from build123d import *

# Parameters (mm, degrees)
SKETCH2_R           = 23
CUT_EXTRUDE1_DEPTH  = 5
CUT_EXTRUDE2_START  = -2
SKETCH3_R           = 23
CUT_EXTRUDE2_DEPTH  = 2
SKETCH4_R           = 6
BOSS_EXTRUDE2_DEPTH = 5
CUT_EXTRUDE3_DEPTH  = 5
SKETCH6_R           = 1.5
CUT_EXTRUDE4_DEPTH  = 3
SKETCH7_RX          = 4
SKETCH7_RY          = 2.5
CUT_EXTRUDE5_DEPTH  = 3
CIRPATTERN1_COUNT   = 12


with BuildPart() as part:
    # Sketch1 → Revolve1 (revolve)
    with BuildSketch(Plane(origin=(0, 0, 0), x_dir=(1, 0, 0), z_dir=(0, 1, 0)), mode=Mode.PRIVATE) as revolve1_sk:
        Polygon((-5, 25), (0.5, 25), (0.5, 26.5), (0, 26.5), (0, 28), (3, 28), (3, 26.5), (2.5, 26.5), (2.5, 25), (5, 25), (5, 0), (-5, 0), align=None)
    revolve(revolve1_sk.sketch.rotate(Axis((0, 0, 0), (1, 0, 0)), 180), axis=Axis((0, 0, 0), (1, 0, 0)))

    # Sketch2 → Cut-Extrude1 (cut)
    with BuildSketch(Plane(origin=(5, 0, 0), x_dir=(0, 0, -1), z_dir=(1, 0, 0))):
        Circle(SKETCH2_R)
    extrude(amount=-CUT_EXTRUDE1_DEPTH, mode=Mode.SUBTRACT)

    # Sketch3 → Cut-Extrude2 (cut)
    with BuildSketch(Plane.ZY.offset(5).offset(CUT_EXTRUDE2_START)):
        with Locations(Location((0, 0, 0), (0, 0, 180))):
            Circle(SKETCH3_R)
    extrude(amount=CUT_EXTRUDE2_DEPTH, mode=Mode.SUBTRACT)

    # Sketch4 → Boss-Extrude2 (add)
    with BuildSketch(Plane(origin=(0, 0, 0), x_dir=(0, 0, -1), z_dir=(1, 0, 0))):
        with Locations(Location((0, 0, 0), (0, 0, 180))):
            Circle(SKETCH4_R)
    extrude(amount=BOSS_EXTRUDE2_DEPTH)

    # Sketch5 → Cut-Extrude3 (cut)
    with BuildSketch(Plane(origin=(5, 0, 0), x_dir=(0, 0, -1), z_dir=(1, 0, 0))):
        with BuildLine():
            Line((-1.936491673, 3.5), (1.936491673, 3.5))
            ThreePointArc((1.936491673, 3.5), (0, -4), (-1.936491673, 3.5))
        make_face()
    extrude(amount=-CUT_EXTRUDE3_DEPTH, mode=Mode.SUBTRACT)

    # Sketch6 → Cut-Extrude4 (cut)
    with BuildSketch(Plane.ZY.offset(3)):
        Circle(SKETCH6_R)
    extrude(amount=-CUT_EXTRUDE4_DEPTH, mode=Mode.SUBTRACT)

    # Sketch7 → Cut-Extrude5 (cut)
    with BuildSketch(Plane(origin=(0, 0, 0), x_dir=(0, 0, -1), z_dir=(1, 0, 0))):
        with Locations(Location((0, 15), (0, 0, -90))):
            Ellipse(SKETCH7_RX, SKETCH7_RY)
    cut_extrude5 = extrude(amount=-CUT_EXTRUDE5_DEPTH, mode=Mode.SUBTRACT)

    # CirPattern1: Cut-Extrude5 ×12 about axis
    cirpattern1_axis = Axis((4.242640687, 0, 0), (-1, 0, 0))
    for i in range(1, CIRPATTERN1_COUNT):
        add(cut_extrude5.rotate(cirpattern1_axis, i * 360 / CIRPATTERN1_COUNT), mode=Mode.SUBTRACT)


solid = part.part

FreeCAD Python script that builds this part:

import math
import FreeCAD as App
import Part
import Sketcher
Q = App.Units.Quantity


def add_polygon(sketch, points):
    """Adds a closed chain of lines whose ends are joined by coincident constraints."""
    first, n = sketch.GeometryCount, len(points)
    for a, b in zip(points, points[1:] + points[:1]):
        sketch.addGeometry(Part.LineSegment(App.Vector(*a, 0), App.Vector(*b, 0)), False)
    for i in range(n):
        sketch.addConstraint(Sketcher.Constraint("Coincident", first + i, 2, first + (i + 1) % n, 1))

doc = App.newDocument("Part")
params = doc.addObject("Spreadsheet::Sheet", "Params")
for row, (alias, value) in enumerate([
    ("sketch1_width", "10 mm"),
    ("sketch1_width2", "3 mm"),
    ("sketch1_height", "25 mm"),
    ("sketch1_width3", "5.5 mm"),
    ("sketch1_height2", "1.5 mm"),
    ("revolution_angle", "360 deg"),
    ("sketch2_diameter", "46 mm"),
    ("pocket1_length", "5 mm"),
    ("sketch3_diameter", "46 mm"),
    ("pocket2_length", "2 mm"),
    ("sketch4_diameter", "12 mm"),
    ("pad1_length", "5 mm"),
    ("sketch5_radius", "4 mm"),
    ("pocket3_length", "5 mm"),
    ("sketch6_diameter", "3 mm"),
    ("pocket4_length", "3 mm"),
    ("pocket5_length", "3 mm"),
], start=1):
    params.set(f"A{row}", alias)
    params.set(f"B{row}", "=" + value)
    params.setAlias(f"B{row}", alias)

body = doc.addObject("PartDesign::Body", "Body")

# Sketch on XZ plane
sketch1 = body.newObject("Sketcher::SketchObject", "Sketch")
sketch1.AttachmentSupport = (doc.getObject("XZ_Plane"), [""])
sketch1.MapMode = "FlatFace"
add_polygon(sketch1, [(0.5, -25), (-5, -25), (-5, 0), (5, 0), (5, -25), (2.5, -25), (2.5, -26.5), (3, -26.5), (3, -28), (0, -28), (0, -26.5), (0.5, -26.5)])  # lines 0-11
sketch1.addConstraint(Sketcher.Constraint("Horizontal", 0))
sketch1.addConstraint(Sketcher.Constraint("Vertical", 1))
sketch1.addConstraint(Sketcher.Constraint("Horizontal", 2))
sketch1.addConstraint(Sketcher.Constraint("Vertical", 3))
sketch1.addConstraint(Sketcher.Constraint("Horizontal", 4))
sketch1.addConstraint(Sketcher.Constraint("Vertical", 5))
sketch1.addConstraint(Sketcher.Constraint("Horizontal", 6))
sketch1.addConstraint(Sketcher.Constraint("Vertical", 7))
sketch1.addConstraint(Sketcher.Constraint("Horizontal", 8))
sketch1.addConstraint(Sketcher.Constraint("Vertical", 9))
sketch1.addConstraint(Sketcher.Constraint("Horizontal", 10))
sketch1.addConstraint(Sketcher.Constraint("Vertical", 11))
sketch1.addConstraint(Sketcher.Constraint("Symmetric", 1, 2, 2, 2, -1, 1))
sketch1.addConstraint(Sketcher.Constraint("PointOnObject", 8, 2, -2))
sketch1.addConstraint(Sketcher.Constraint("Horizontal", 0, 2, 3, 2))
sketch1.addConstraint(Sketcher.Constraint("Horizontal", 6, 2, 9, 2))
sketch1.addConstraint(Sketcher.Constraint("Equal", 6, 10))
sketch1.addConstraint(Sketcher.Constraint("Equal", 5, 7))
sketch1.addConstraint(Sketcher.Constraint("DistanceX", 2, 1, 2, 2, Q("10 mm")))
sketch1.addConstraint(Sketcher.Constraint("DistanceX", 8, 2, 8, 1, Q("3 mm")))
sketch1.addConstraint(Sketcher.Constraint("DistanceY", 1, 1, 1, 2, Q("25 mm")))
sketch1.addConstraint(Sketcher.Constraint("DistanceX", 0, 2, 0, 1, Q("5.5 mm")))
sketch1.addConstraint(Sketcher.Constraint("DistanceY", 5, 2, 5, 1, Q("1.5 mm")))
sketch1.setExpression("Constraints[30]", "Params.sketch1_width")
sketch1.setExpression("Constraints[31]", "Params.sketch1_width2")
sketch1.setExpression("Constraints[32]", "Params.sketch1_height")
sketch1.setExpression("Constraints[33]", "Params.sketch1_width3")
sketch1.setExpression("Constraints[34]", "Params.sketch1_height2")
revolution = body.newObject("PartDesign::Revolution", "Revolution")
revolution.Profile = sketch1
revolution.ReferenceAxis = (sketch1, ["H_Axis"])
revolution.setExpression("Angle", "Params.revolution_angle")

# Sketch on YZ plane
sketch2 = body.newObject("Sketcher::SketchObject", "Sketch001")
sketch2.AttachmentSupport = (doc.getObject("YZ_Plane"), [""])
sketch2.MapMode = "FlatFace"
sketch2.AttachmentOffset = App.Placement(App.Vector(0, 0, 5), App.Rotation())
sketch2.addGeometry(Part.Circle(App.Vector(0, 0, 0), App.Vector(0, 0, 1), 23), False)
sketch2.addConstraint(Sketcher.Constraint("Coincident", 0, 3, -1, 1))
sketch2.addConstraint(Sketcher.Constraint("Diameter", 0, Q("46 mm")))
sketch2.setExpression("Constraints[1]", "Params.sketch2_diameter")
pocket1 = body.newObject("PartDesign::Pocket", "Pocket")
pocket1.Profile = sketch2
pocket1.setExpression("Length", "Params.pocket1_length")

# Sketch on YZ plane
sketch3 = body.newObject("Sketcher::SketchObject", "Sketch002")
sketch3.AttachmentSupport = (doc.getObject("YZ_Plane"), [""])
sketch3.MapMode = "FlatFace"
sketch3.AttachmentOffset = App.Placement(App.Vector(0, 0, -3), App.Rotation())
sketch3.addGeometry(Part.Circle(App.Vector(0, 0, 0), App.Vector(0, 0, 1), 23), False)
sketch3.addConstraint(Sketcher.Constraint("Coincident", 0, 3, -1, 1))
sketch3.addConstraint(Sketcher.Constraint("Diameter", 0, Q("46 mm")))
sketch3.setExpression("Constraints[1]", "Params.sketch3_diameter")
pocket2 = body.newObject("PartDesign::Pocket", "Pocket001")
pocket2.Profile = sketch3
pocket2.setExpression("Length", "Params.pocket2_length")

# Sketch on YZ plane
sketch4 = body.newObject("Sketcher::SketchObject", "Sketch003")
sketch4.AttachmentSupport = (doc.getObject("YZ_Plane"), [""])
sketch4.MapMode = "FlatFace"
sketch4.addGeometry(Part.Circle(App.Vector(0, 0, 0), App.Vector(0, 0, 1), 6), False)
sketch4.addConstraint(Sketcher.Constraint("Coincident", 0, 3, -1, 1))
sketch4.addConstraint(Sketcher.Constraint("Diameter", 0, Q("12 mm")))
sketch4.setExpression("Constraints[1]", "Params.sketch4_diameter")
pad1 = body.newObject("PartDesign::Pad", "Pad")
pad1.Profile = sketch4
pad1.setExpression("Length", "Params.pad1_length")

# Sketch on YZ plane
sketch5 = body.newObject("Sketcher::SketchObject", "Sketch004")
sketch5.AttachmentSupport = (doc.getObject("YZ_Plane"), [""])
sketch5.MapMode = "FlatFace"
sketch5.AttachmentOffset = App.Placement(App.Vector(0, 0, 5), App.Rotation())
sketch5.addGeometry(Part.LineSegment(App.Vector(3.5, -1.9, 0), App.Vector(3.5, 1.9, 0)), False)
sketch5.addGeometry(Part.ArcOfCircle(Part.Circle(App.Vector(0, 0, 0), App.Vector(0, 0, 1), 4), math.radians(29), math.radians(331)), False)
sketch5.addConstraint(Sketcher.Constraint("Coincident", 0, 1, 1, 2))
sketch5.addConstraint(Sketcher.Constraint("Coincident", 1, 1, 0, 2))
sketch5.addConstraint(Sketcher.Constraint("Vertical", 0))
sketch5.addConstraint(Sketcher.Constraint("Coincident", 1, 3, -1, 1))
sketch5.addConstraint(Sketcher.Constraint("Radius", 1, Q("4 mm")))
sketch5.addConstraint(Sketcher.Constraint("DistanceX", -1, 1, 0, 1, Q("3.5 mm")))
sketch5.setExpression("Constraints[4]", "Params.sketch5_radius")
pocket3 = body.newObject("PartDesign::Pocket", "Pocket002")
pocket3.Profile = sketch5
pocket3.setExpression("Length", "Params.pocket3_length")

# Sketch on YZ plane
sketch6 = body.newObject("Sketcher::SketchObject", "Sketch005")
sketch6.AttachmentSupport = (doc.getObject("YZ_Plane"), [""])
sketch6.MapMode = "FlatFace"
sketch6.AttachmentOffset = App.Placement(App.Vector(0, 0, -3), App.Rotation())
sketch6.addGeometry(Part.Circle(App.Vector(0, 0, 0), App.Vector(0, 0, 1), 1.5), False)
sketch6.addConstraint(Sketcher.Constraint("Coincident", 0, 3, -1, 1))
sketch6.addConstraint(Sketcher.Constraint("Diameter", 0, Q("3 mm")))
sketch6.setExpression("Constraints[1]", "Params.sketch6_diameter")
pocket4 = body.newObject("PartDesign::Pocket", "Pocket003")
pocket4.Profile = sketch6
pocket4.setExpression("Length", "Params.pocket4_length")
pocket4.Reversed = True

# Sketch on YZ plane
sketch7 = body.newObject("Sketcher::SketchObject", "Sketch006")
sketch7.AttachmentSupport = (doc.getObject("YZ_Plane"), [""])
sketch7.MapMode = "FlatFace"
sketch7.addGeometry(Part.Ellipse(App.Vector(11, 0, 0), App.Vector(15, -2.5, 0), App.Vector(15, 0, 0)), False)
sketch7.addConstraint(Sketcher.Constraint("Block", 0))
pocket5 = body.newObject("PartDesign::Pocket", "Pocket004")
pocket5.Profile = sketch7
pocket5.setExpression("Length", "Params.pocket5_length")
doc.recompute()

polarpattern = body.newObject("PartDesign::PolarPattern", "PolarPattern")
polarpattern.Originals = [pocket5]
polarpattern.Axis = (doc.getObject("X_Axis"), [""])
polarpattern.Angle = 360
polarpattern.Occurrences = 12
body.Tip = polarpattern

doc.recompute()
